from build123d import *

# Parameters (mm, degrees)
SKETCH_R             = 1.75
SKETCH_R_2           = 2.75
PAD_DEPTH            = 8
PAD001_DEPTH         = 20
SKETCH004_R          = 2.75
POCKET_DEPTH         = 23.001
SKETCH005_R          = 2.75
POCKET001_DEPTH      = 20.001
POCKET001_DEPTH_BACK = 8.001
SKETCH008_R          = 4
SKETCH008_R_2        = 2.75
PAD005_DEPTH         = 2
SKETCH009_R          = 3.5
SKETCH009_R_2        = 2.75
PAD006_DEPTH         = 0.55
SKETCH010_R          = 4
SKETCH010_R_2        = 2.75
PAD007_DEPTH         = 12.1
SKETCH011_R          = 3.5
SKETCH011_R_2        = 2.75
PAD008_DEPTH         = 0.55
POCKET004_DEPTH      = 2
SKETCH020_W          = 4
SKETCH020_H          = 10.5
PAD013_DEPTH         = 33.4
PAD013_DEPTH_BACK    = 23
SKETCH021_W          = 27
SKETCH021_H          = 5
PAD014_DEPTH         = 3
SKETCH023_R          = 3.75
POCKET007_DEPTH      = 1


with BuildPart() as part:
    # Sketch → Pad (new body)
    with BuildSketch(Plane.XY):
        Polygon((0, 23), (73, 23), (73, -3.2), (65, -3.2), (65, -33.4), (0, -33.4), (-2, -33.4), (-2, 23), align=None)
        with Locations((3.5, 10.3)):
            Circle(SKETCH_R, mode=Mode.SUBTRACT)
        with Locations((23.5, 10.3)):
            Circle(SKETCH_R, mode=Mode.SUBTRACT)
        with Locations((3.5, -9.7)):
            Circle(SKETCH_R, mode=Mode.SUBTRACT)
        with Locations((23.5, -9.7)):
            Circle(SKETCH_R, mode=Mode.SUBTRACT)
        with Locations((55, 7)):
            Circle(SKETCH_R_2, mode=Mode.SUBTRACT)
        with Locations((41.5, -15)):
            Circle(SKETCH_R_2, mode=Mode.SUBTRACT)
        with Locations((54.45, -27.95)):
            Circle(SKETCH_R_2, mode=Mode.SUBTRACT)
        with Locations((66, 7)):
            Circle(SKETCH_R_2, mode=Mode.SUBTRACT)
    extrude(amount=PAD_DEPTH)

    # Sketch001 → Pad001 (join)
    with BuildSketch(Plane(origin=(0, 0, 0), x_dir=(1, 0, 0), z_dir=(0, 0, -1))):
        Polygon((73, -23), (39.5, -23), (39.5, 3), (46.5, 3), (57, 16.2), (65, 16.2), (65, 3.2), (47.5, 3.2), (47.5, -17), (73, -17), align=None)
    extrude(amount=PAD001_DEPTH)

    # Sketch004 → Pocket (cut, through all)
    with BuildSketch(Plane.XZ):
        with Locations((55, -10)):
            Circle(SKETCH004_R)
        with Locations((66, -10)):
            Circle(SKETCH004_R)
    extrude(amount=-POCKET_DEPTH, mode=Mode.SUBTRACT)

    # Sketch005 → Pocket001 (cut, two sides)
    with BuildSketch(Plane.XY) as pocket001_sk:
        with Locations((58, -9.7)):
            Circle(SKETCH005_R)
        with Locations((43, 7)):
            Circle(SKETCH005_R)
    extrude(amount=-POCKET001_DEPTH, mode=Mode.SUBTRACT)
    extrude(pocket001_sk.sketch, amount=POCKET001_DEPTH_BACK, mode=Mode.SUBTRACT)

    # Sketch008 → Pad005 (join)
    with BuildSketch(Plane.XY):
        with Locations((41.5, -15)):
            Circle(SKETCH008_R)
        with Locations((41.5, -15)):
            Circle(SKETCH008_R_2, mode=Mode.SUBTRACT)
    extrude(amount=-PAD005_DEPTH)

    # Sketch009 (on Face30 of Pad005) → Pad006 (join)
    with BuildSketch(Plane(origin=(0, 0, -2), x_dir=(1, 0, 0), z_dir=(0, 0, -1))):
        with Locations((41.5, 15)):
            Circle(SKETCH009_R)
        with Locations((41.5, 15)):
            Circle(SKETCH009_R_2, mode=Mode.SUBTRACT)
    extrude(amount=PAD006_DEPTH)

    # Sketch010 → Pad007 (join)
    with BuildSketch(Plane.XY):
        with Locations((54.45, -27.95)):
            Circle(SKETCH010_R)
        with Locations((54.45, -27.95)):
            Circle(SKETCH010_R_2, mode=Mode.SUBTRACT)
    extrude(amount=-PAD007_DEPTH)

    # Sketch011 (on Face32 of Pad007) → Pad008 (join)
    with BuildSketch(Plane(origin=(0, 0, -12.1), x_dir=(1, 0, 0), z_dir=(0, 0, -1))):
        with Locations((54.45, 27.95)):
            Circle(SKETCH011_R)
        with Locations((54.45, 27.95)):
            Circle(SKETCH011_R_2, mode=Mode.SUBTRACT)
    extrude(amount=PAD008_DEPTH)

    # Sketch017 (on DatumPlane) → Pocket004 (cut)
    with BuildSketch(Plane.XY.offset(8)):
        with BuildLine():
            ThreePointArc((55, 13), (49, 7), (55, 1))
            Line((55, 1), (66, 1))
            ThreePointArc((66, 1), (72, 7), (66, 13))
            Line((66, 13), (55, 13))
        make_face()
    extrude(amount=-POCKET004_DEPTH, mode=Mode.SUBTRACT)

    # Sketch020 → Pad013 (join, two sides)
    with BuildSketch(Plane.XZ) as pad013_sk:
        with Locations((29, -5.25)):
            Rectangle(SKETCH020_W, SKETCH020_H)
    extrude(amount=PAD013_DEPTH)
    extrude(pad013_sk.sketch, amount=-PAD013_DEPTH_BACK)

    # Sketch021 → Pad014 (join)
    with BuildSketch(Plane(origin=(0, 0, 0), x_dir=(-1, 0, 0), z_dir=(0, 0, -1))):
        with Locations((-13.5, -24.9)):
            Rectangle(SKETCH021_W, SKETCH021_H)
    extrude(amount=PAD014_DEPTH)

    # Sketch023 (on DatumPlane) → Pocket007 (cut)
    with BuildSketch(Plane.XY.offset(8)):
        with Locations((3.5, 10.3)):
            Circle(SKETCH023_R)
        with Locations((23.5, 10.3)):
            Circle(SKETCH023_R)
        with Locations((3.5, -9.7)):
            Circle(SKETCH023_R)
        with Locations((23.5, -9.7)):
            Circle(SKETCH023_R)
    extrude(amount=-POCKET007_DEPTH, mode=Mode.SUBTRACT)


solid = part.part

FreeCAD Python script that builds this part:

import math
import FreeCAD as App
import Part
import Sketcher

doc = App.newDocument("Part")
body = doc.addObject("PartDesign::Body", "Body")

# Sketch on XY plane
sketch1 = doc.addObject("Sketcher::SketchObject", "Sketch")
body.addObject(sketch1)
sketch1.AttachmentSupport = (doc.XY_Plane, [""])
sketch1.MapMode = "FlatFace"
sketch1.addGeometry([
    Part.LineSegment(App.Vector(73, 23, 0), App.Vector(-2, 23, 0)),  # 0
    Part.LineSegment(App.Vector(-2, 23, 0), App.Vector(-2, -33.4, 0)),  # 1
    Part.LineSegment(App.Vector(-2, -33.4, 0), App.Vector(65, -33.4, 0)),  # 2
    Part.LineSegment(App.Vector(65, -33.4, 0), App.Vector(65, -3.2, 0)),  # 3
    Part.LineSegment(App.Vector(65, -3.2, 0), App.Vector(73, -3.2, 0)),  # 4
    Part.LineSegment(App.Vector(73, -3.2, 0), App.Vector(73, 23, 0)),  # 5
    Part.Circle(App.Vector(54.5, -27.9, 0), App.Vector(0, 0, 1), 2.8),  # 6
    Part.Circle(App.Vector(41.5, -15, 0), App.Vector(0, 0, 1), 2.8),  # 7
    Part.Circle(App.Vector(23.5, -9.7, 0), App.Vector(0, 0, 1), 1.8),  # 8
    Part.Circle(App.Vector(3.5, -9.7, 0), App.Vector(0, 0, 1), 1.8),  # 9
    Part.Circle(App.Vector(66, 7, 0), App.Vector(0, 0, 1), 2.8),  # 10
    Part.Circle(App.Vector(55, 7, 0), App.Vector(0, 0, 1), 2.8),  # 11
    Part.Circle(App.Vector(23.5, 10.3, 0), App.Vector(0, 0, 1), 1.8),  # 12
    Part.Circle(App.Vector(3.5, 10.3, 0), App.Vector(0, 0, 1), 1.8),  # 13
], False)
sketch1.addConstraint([
    Sketcher.Constraint("Coincident", 0, 2, 1, 1),
    Sketcher.Constraint("Coincident", 1, 2, 2, 1),
    Sketcher.Constraint("Coincident", 2, 2, 3, 1),
    Sketcher.Constraint("Coincident", 3, 2, 4, 1),
    Sketcher.Constraint("Coincident", 4, 2, 5, 1),
    Sketcher.Constraint("Coincident", 5, 2, 0, 1),
    Sketcher.Constraint("Horizontal", 0),
    Sketcher.Constraint("Vertical", 1),
    Sketcher.Constraint("Horizontal", 2),
    Sketcher.Constraint("Vertical", 3),
    Sketcher.Constraint("Horizontal", 4),
    Sketcher.Constraint("Vertical", 5),
    Sketcher.Constraint("Equal", 6, 7),
    Sketcher.Constraint("Equal", 8, 9),
    Sketcher.Constraint("Equal", 7, 10),
    Sketcher.Constraint("Equal", 10, 11),
    Sketcher.Constraint("Equal", 9, 12),
    Sketcher.Constraint("Equal", 12, 13),
    Sketcher.Constraint("Horizontal", 8, 3, 9, 3),
    Sketcher.Constraint("Horizontal", 10, 3, 11, 3),
    Sketcher.Constraint("Horizontal", 12, 3, 13, 3),
    Sketcher.Constraint("Vertical", 8, 3, 12, 3),
    Sketcher.Constraint("Vertical", 9, 3, 13, 3),
    Sketcher.Constraint("Diameter", 6, 5.5),
    Sketcher.Constraint("Diameter", 8, 3.5),
    Sketcher.Constraint("DistanceX", 0, 2, 0, 1, 75.0),
    Sketcher.Constraint("DistanceX", 2, 1, 2, 2, 67.0),
    Sketcher.Constraint("DistanceY", 1, 2, 1, 1, 56.4),
    Sketcher.Constraint("DistanceY", 3, 1, 3, 2, 30.2),
    Sketcher.Constraint("DistanceY", 7, 3, -1, 1, 15.0),
    Sketcher.Constraint("DistanceX", -1, 1, 10, 3, 66.0),
    Sketcher.Constraint("DistanceY", -1, 1, 10, 3, 7.0),
    Sketcher.Constraint("DistanceX", -1, 1, 11, 3, 55.0),
    Sketcher.Constraint("DistanceX", 0, 2, -1, 1, 2.0),
    Sketcher.Constraint("DistanceY", -1, 1, 0, 2, 23.0),
    Sketcher.Constraint("DistanceX", 8, 3, 7, 3, 18.0),
    Sketcher.Constraint("DistanceX", 9, 3, 8, 3, 20.0),
    Sketcher.Constraint("DistanceY", 8, 3, 12, 3, 20.0),
    Sketcher.Constraint("DistanceX", -1, 1, 7, 3, 41.5),
    Sketcher.Constraint("DistanceY", 8, 3, -1, 1, 9.7),
    Sketcher.Constraint("DistanceX", -1, 1, 6, 3, 54.45),
    Sketcher.Constraint("DistanceY", 6, 3, -1, 1, 27.95),
])
pad1 = doc.addObject("PartDesign::Pad", "Pad")
body.addObject(pad1)
pad1.Profile = sketch1
pad1.Length = 8

# Sketch on XY plane
sketch2 = doc.addObject("Sketcher::SketchObject", "Sketch001")
body.addObject(sketch2)
sketch2.AttachmentSupport = (doc.XY_Plane, [""])
sketch2.MapMode = "FlatFace"
sketch2.addGeometry([
    Part.LineSegment(App.Vector(40, 23, 0), App.Vector(73, 23, 0)),  # 0
    Part.LineSegment(App.Vector(73, 23, 0), App.Vector(73, 17, 0)),  # 1
    Part.LineSegment(App.Vector(73, 17, 0), App.Vector(48, 17, 0)),  # 2
    Part.LineSegment(App.Vector(48, 17, 0), App.Vector(48, -3, 0)),  # 3
    Part.LineSegment(App.Vector(48, -3, 0), App.Vector(65, -3, 0)),  # 4
    Part.LineSegment(App.Vector(65, -3, 0), App.Vector(65, -16, 0)),  # 5
    Part.LineSegment(App.Vector(65, -16, 0), App.Vector(57, -16, 0)),  # 6
    Part.LineSegment(App.Vector(57, -16, 0), App.Vector(46, -3, 0)),  # 7
    Part.LineSegment(App.Vector(46, -3, 0), App.Vector(40, -3, 0)),  # 8
    Part.LineSegment(App.Vector(40, -3, 0), App.Vector(40, 23, 0)),  # 9
], False)
sketch2.addConstraint([
    Sketcher.Constraint("Coincident", 0, 2, 1, 1),
    Sketcher.Constraint("Coincident", 1, 2, 2, 1),
    Sketcher.Constraint("Coincident", 2, 2, 3, 1),
    Sketcher.Constraint("Coincident", 3, 2, 4, 1),
    Sketcher.Constraint("Coincident", 4, 2, 5, 1),
    Sketcher.Constraint("Coincident", 5, 2, 6, 1),
    Sketcher.Constraint("Coincident", 6, 2, 7, 1),
    Sketcher.Constraint("Coincident", 7, 2, 8, 1),
    Sketcher.Constraint("Coincident", 8, 2, 9, 1),
    Sketcher.Constraint("Coincident", 9, 2, 0, 1),
    Sketcher.Constraint("Horizontal", 0),
    Sketcher.Constraint("Vertical", 1),
    Sketcher.Constraint("Horizontal", 2),
    Sketcher.Constraint("Vertical", 3),
    Sketcher.Constraint("Horizontal", 4),
    Sketcher.Constraint("Vertical", 5),
    Sketcher.Constraint("Horizontal", 6),
    Sketcher.Constraint("Horizontal", 8),
    Sketcher.Constraint("Vertical", 9),
    Sketcher.Constraint("DistanceX", 6, 2, 6, 1, 8.0),
    Sketcher.Constraint("DistanceX", 8, 2, 8, 1, 7.0),
    Sketcher.Constraint("DistanceY", 1, 2, 1, 1, 6.0),
    Sketcher.Constraint("DistanceY", 5, 2, 5, 1, 13.0),
    Sketcher.Constraint("DistanceY", 9, 1, 9, 2, 26.0),
    Sketcher.Constraint("DistanceX", 0, 1, 0, 2, 33.5),
    Sketcher.Constraint("DistanceX", 2, 2, 2, 1, 25.5),
    Sketcher.Constraint("DistanceX", 4, 1, 4, 2, 17.5),
    Sketcher.Constraint("DistanceY", 3, 2, 3, 1, 20.2),
    Sketcher.Constraint("DistanceX", -1, 1, 0, 2, 73.0),
    Sketcher.Constraint("DistanceY", -1, 1, 0, 2, 23.0),
])
pad2 = doc.addObject("PartDesign::Pad", "Pad001")
body.addObject(pad2)
pad2.Profile = sketch2
pad2.Length = 20
pad2.Reversed = True

# Sketch on XZ plane
sketch3 = doc.addObject("Sketcher::SketchObject", "Sketch002")
body.addObject(sketch3)
sketch3.AttachmentSupport = (doc.XZ_Plane, [""])
sketch3.MapMode = "FlatFace"
sketch3.addGeometry([
    Part.Circle(App.Vector(55, -10, 0), App.Vector(0, 0, 1), 2.8),
    Part.Circle(App.Vector(66, -10, 0), App.Vector(0, 0, 1), 2.8),
], False)
sketch3.addConstraint([
    Sketcher.Constraint("Equal", 0, 1),
    Sketcher.Constraint("Horizontal", 0, 3, 1, 3),
    Sketcher.Constraint("Diameter", 0, 5.5),
    Sketcher.Constraint("DistanceX", -1, 1, 0, 3, 55.0),
    Sketcher.Constraint("DistanceY", 0, 3, -1, 1, 10.0),
    Sketcher.Constraint("DistanceX", -1, 1, 1, 3, 66.0),
])
pocket1 = doc.addObject("PartDesign::Pocket", "Pocket")
body.addObject(pocket1)
pocket1.Profile = sketch3
pocket1.Type = "ThroughAll"

# Sketch on XY plane
sketch4 = doc.addObject("Sketcher::SketchObject", "Sketch003")
body.addObject(sketch4)
sketch4.AttachmentSupport = (doc.XY_Plane, [""])
sketch4.MapMode = "FlatFace"
sketch4.addGeometry([
    Part.Circle(App.Vector(58, -9.7, 0), App.Vector(0, 0, 1), 2.8),
    Part.Circle(App.Vector(43, 7, 0), App.Vector(0, 0, 1), 2.8),
], False)
sketch4.addConstraint([
    Sketcher.Constraint("Equal", 0, 1),
    Sketcher.Constraint("Diameter", 0, 5.5),
    Sketcher.Constraint("DistanceX", -1, 1, 0, 3, 58.0),
    Sketcher.Constraint("DistanceX", -1, 1, 1, 3, 43.0),
    Sketcher.Constraint("DistanceY", -1, 1, 1, 3, 7.0),
    Sketcher.Constraint("DistanceY", 0, 3, -1, 1, 9.7),
])
pocket2 = doc.addObject("PartDesign::Pocket", "Pocket001")
body.addObject(pocket2)
pocket2.Profile = sketch4
pocket2.Type = "ThroughAll"
pocket2.Midplane = True

# Sketch on XY plane
sketch5 = doc.addObject("Sketcher::SketchObject", "Sketch004")
body.addObject(sketch5)
sketch5.AttachmentSupport = (doc.XY_Plane, [""])
sketch5.MapMode = "FlatFace"
sketch5.addGeometry([
    Part.Circle(App.Vector(41.5, -15, 0), App.Vector(0, 0, 1), 4),
    Part.Circle(App.Vector(41.5, -15, 0), App.Vector(0, 0, 1), 2.8),
], False)
sketch5.addConstraint([
    Sketcher.Constraint("Coincident", 1, 3, 0, 3),
    Sketcher.Constraint("Diameter", 0, 8.0),
    Sketcher.Constraint("Diameter", 1, 5.5),
    Sketcher.Constraint("DistanceY", 0, 3, -1, 1, 15.0),
    Sketcher.Constraint("DistanceX", -1, 1, 0, 3, 41.5),
])
pad3 = doc.addObject("PartDesign::Pad", "Pad002")
body.addObject(pad3)
pad3.Profile = sketch5
pad3.Length = 2
pad3.Reversed = True

# Sketch on XY plane
sketch6 = doc.addObject("Sketcher::SketchObject", "Sketch005")
body.addObject(sketch6)
sketch6.AttachmentSupport = (doc.XY_Plane, [""])
sketch6.MapMode = "FlatFace"
sketch6.AttachmentOffset = App.Placement(App.Vector(0, 0, -2), App.Rotation())
sketch6.addGeometry([
    Part.Circle(App.Vector(41.5, -15, 0), App.Vector(0, 0, 1), 3.5),
    Part.Circle(App.Vector(41.5, -15, 0), App.Vector(0, 0, 1), 2.8),
], False)
sketch6.addConstraint([
    Sketcher.Constraint("Coincident", 1, 3, 0, 3),
    Sketcher.Constraint("Diameter", 0, 7.0),
    Sketcher.Constraint("Diameter", 1, 5.5),
    Sketcher.Constraint("DistanceY", 0, 3, -1, 1, 15.0),
    Sketcher.Constraint("DistanceX", -1, 1, 0, 3, 41.5),
])
pad4 = doc.addObject("PartDesign::Pad", "Pad003")
body.addObject(pad4)
pad4.Profile = sketch6
pad4.Length = 0.55
pad4.Reversed = True

# Sketch on XY plane
sketch7 = doc.addObject("Sketcher::SketchObject", "Sketch006")
body.addObject(sketch7)
sketch7.AttachmentSupport = (doc.XY_Plane, [""])
sketch7.MapMode = "FlatFace"
sketch7.addGeometry([
    Part.Circle(App.Vector(54.5, -27.9, 0), App.Vector(0, 0, 1), 4),
    Part.Circle(App.Vector(54.5, -27.9, 0), App.Vector(0, 0, 1), 2.8),
], False)
sketch7.addConstraint([
    Sketcher.Constraint("Coincident", 1, 3, 0, 3),
    Sketcher.Constraint("Diameter", 0, 8.0),
    Sketcher.Constraint("Diameter", 1, 5.5),
    Sketcher.Constraint("DistanceX", -1, 1, 0, 3, 54.45),
    Sketcher.Constraint("DistanceY", 0, 3, -1, 1, 27.95),
])
pad5 = doc.addObject("PartDesign::Pad", "Pad004")
body.addObject(pad5)
pad5.Profile = sketch7
pad5.Length = 12.1
pad5.Reversed = True

# Sketch on XY plane
sketch8 = doc.addObject("Sketcher::SketchObject", "Sketch007")
body.addObject(sketch8)
sketch8.AttachmentSupport = (doc.XY_Plane, [""])
sketch8.MapMode = "FlatFace"
sketch8.AttachmentOffset = App.Placement(App.Vector(0, 0, -12.1), App.Rotation())
sketch8.addGeometry([
    Part.Circle(App.Vector(54.5, -27.9, 0), App.Vector(0, 0, 1), 3.5),
    Part.Circle(App.Vector(54.5, -27.9, 0), App.Vector(0, 0, 1), 2.8),
], False)
sketch8.addConstraint([
    Sketcher.Constraint("Coincident", 1, 3, 0, 3),
    Sketcher.Constraint("Diameter", 0, 7.0),
    Sketcher.Constraint("Diameter", 1, 5.5),
    Sketcher.Constraint("DistanceX", -1, 1, 0, 3, 54.45),
    Sketcher.Constraint("DistanceY", 0, 3, -1, 1, 27.95),
])
pad6 = doc.addObject("PartDesign::Pad", "Pad005")
body.addObject(pad6)
pad6.Profile = sketch8
pad6.Length = 0.55
pad6.Reversed = True

# Sketch on XY plane
sketch9 = doc.addObject("Sketcher::SketchObject", "Sketch008")
body.addObject(sketch9)
sketch9.AttachmentSupport = (doc.XY_Plane, [""])
sketch9.MapMode = "FlatFace"
sketch9.AttachmentOffset = App.Placement(App.Vector(0, 0, 8), App.Rotation())
sketch9.addGeometry([
    Part.ArcOfCircle(Part.Circle(App.Vector(55, 7, 0), App.Vector(0, 0, 1), 6), math.radians(90), math.radians(270)),
    Part.LineSegment(App.Vector(55, 1, 0), App.Vector(66, 1, 0)),
    Part.ArcOfCircle(Part.Circle(App.Vector(66, 7, 0), App.Vector(0, 0, 1), 6), math.radians(-90), math.radians(90)),
    Part.LineSegment(App.Vector(66, 13, 0), App.Vector(55, 13, 0)),
], False)
sketch9.addConstraint([
    Sketcher.Constraint("Tangent", 0, 2, 1, 1),
    Sketcher.Constraint("Tangent", 1, 2, 2, 1),
    Sketcher.Constraint("Tangent", 2, 2, 3, 1),
    Sketcher.Constraint("Tangent", 3, 2, 0, 1),
    Sketcher.Constraint("Horizontal", 1),
    Sketcher.Constraint("Horizontal", 3),
    Sketcher.Constraint("Radius", 0, 6.0),
    Sketcher.Constraint("DistanceX", 1, 1, 1, 2, 11.0),
    Sketcher.Constraint("DistanceX", -1, 1, 0, 3, 55.0),
    Sketcher.Constraint("DistanceY", -1, 1, 0, 3, 7.0),
])
pocket3 = doc.addObject("PartDesign::Pocket", "Pocket002")
body.addObject(pocket3)
pocket3.Profile = sketch9
pocket3.Length = 2

# Sketch on XZ plane
sketch10 = doc.addObject("Sketcher::SketchObject", "Sketch009")
body.addObject(sketch10)
sketch10.AttachmentSupport = (doc.XZ_Plane, [""])
sketch10.MapMode = "FlatFace"
sketch10.addGeometry([
    Part.LineSegment(App.Vector(27, 0, 0), App.Vector(27, -10.5, 0)),
    Part.LineSegment(App.Vector(27, -10.5, 0), App.Vector(31, -10.5, 0)),
    Part.LineSegment(App.Vector(31, -10.5, 0), App.Vector(31, 0, 0)),
    Part.LineSegment(App.Vector(31, 0, 0), App.Vector(27, 0, 0)),
], False)
sketch10.addConstraint([
    Sketcher.Constraint("Coincident", 0, 2, 1, 1),
    Sketcher.Constraint("Coincident", 1, 2, 2, 1),
    Sketcher.Constraint("Coincident", 2, 2, 3, 1),
    Sketcher.Constraint("Coincident", 3, 2, 0, 1),
    Sketcher.Constraint("Vertical", 0),
    Sketcher.Constraint("Horizontal", 1),
    Sketcher.Constraint("Vertical", 2),
    Sketcher.Constraint("Horizontal", 3),
    Sketcher.Constraint("PointOnObject", 2, 2, -1),
    Sketcher.Constraint("DistanceX", 1, 1, 1, 2, 4.0),
    Sketcher.Constraint("DistanceY", 0, 2, 0, 1, 10.5),
    Sketcher.Constraint("DistanceX", -1, 1, 0, 2, 27.0),
])
pad7 = doc.addObject("PartDesign::Pad", "Pad006")
body.addObject(pad7)
pad7.Profile = sketch10
pad7.Type = "TwoLengths"
pad7.Length = 33.4
pad7.Length2 = 23

# Sketch on XY plane
sketch11 = doc.addObject("Sketcher::SketchObject", "Sketch010")
body.addObject(sketch11)
sketch11.AttachmentSupport = (doc.XY_Plane, [""])
sketch11.MapMode = "FlatFace"
sketch11.addGeometry([
    Part.LineSegment(App.Vector(27, -22, 0), App.Vector(27, -27, 0)),
    Part.LineSegment(App.Vector(27, -27, 0), App.Vector(0, -27, 0)),
    Part.LineSegment(App.Vector(0, -27, 0), App.Vector(0, -22, 0)),
    Part.LineSegment(App.Vector(0, -22, 0), App.Vector(27, -22, 0)),
], False)
sketch11.addConstraint([
    Sketcher.Constraint("Coincident", 0, 2, 1, 1),
    Sketcher.Constraint("Coincident", 1, 2, 2, 1),
    Sketcher.Constraint("Coincident", 2, 2, 3, 1),
    Sketcher.Constraint("Coincident", 3, 2, 0, 1),
    Sketcher.Constraint("Vertical", 0),
    Sketcher.Constraint("Horizontal", 1),
    Sketcher.Constraint("Vertical", 2),
    Sketcher.Constraint("Horizontal", 3),
    Sketcher.Constraint("PointOnObject", 1, 2, -2),
    Sketcher.Constraint("DistanceX", 1, 2, 1, 1, 27.0),
    Sketcher.Constraint("DistanceY", 0, 2, 0, 1, 5.0),
    Sketcher.Constraint("DistanceY", 0, 2, -1, 1, 27.4),
])
pad8 = doc.addObject("PartDesign::Pad", "Pad007")
body.addObject(pad8)
pad8.Profile = sketch11
pad8.Length = 3
pad8.Reversed = True

# Sketch on XY plane
sketch12 = doc.addObject("Sketcher::SketchObject", "Sketch011")
body.addObject(sketch12)
sketch12.AttachmentSupport = (doc.XY_Plane, [""])
sketch12.MapMode = "FlatFace"
sketch12.AttachmentOffset = App.Placement(App.Vector(0, 0, 8), App.Rotation())
sketch12.addGeometry([
    Part.Circle(App.Vector(3.5, 10.3, 0), App.Vector(0, 0, 1), 3.8),
    Part.Circle(App.Vector(23.5, 10.3, 0), App.Vector(0, 0, 1), 3.8),
    Part.Circle(App.Vector(3.5, -9.7, 0), App.Vector(0, 0, 1), 3.8),
    Part.Circle(App.Vector(23.5, -9.7, 0), App.Vector(0, 0, 1), 3.8),
], False)
sketch12.addConstraint([
    Sketcher.Constraint("Equal", 0, 1),
    Sketcher.Constraint("Equal", 1, 2),
    Sketcher.Constraint("Equal", 2, 3),
    Sketcher.Constraint("Horizontal", 0, 3, 1, 3),
    Sketcher.Constraint("Horizontal", 2, 3, 3, 3),
    Sketcher.Constraint("Vertical", 0, 3, 2, 3),
    Sketcher.Constraint("Vertical", 1, 3, 3, 3),
    Sketcher.Constraint("Diameter", 0, 7.5),
    Sketcher.Constraint("DistanceX", 0, 3, 1, 3, 20.0),
    Sketcher.Constraint("DistanceY", 2, 3, 0, 3, 20.0),
    Sketcher.Constraint("DistanceX", -1, 1, 0, 3, 3.5),
    Sketcher.Constraint("DistanceY", -1, 1, 0, 3, 10.3),
])
pocket4 = doc.addObject("PartDesign::Pocket", "Pocket003")
body.addObject(pocket4)
pocket4.Profile = sketch12
pocket4.Length = 1

doc.recompute()
